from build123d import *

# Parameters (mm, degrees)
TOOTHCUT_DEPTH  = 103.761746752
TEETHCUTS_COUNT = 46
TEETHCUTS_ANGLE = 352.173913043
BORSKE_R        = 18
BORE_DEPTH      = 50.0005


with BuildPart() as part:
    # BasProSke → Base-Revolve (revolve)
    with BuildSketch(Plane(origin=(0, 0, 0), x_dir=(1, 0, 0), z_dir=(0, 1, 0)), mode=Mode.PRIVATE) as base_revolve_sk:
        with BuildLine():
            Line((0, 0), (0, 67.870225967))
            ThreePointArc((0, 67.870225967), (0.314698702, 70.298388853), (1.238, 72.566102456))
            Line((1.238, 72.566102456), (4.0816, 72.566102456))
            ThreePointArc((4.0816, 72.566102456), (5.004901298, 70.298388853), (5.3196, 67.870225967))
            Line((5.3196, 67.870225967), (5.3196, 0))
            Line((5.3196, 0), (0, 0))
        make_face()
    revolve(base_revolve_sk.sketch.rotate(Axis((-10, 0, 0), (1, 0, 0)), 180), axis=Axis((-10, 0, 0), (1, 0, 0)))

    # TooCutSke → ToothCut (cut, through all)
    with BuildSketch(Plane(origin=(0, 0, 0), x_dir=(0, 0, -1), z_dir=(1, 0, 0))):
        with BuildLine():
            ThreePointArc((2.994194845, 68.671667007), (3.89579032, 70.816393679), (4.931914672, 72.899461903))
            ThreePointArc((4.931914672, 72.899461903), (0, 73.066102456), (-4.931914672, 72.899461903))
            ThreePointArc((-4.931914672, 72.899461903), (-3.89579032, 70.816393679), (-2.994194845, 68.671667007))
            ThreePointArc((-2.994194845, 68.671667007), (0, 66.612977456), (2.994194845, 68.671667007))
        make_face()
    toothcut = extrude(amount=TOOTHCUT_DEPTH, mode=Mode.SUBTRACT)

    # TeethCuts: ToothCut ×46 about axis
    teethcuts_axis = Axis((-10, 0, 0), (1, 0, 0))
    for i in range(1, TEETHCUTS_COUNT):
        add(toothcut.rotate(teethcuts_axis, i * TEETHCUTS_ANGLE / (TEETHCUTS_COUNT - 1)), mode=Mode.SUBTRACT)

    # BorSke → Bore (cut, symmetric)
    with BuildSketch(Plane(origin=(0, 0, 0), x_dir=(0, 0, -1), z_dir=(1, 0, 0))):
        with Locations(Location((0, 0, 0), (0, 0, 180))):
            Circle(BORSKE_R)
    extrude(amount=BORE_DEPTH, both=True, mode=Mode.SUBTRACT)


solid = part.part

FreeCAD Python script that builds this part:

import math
import FreeCAD as App
import Part
import Sketcher

V = App.Vector
Q = App.Units.Quantity

doc = App.newDocument("Part")
params = doc.addObject("Spreadsheet::Sheet", "Params")
for row, (alias, value) in enumerate([
    ("sketch1_radius", "0.375 in"),
    ("revolution_angle", "360 deg"),
    ("sketch2_radius", "1.44 in"),
    ("pocket2_length", "100.001 mm"),
], start=1):
    params.set(f"A{row}", alias)
    params.set(f"B{row}", "=" + value)
    params.setAlias(f"B{row}", alias)

body = doc.addObject("PartDesign::Body", "Body")

# Sketch on XZ plane
sketch1 = body.newObject("Sketcher::SketchObject", "Sketch")
sketch1.AttachmentSupport = (doc.getObject("XZ_Plane"), [""])
sketch1.MapMode = "FlatFace"
sketch1.addGeometry(Part.LineSegment(V(0, -67.9, 0), V(0, 0, 0)), False)
sketch1.addGeometry(Part.LineSegment(V(0, 0, 0), V(5.3, 0, 0)), False)
sketch1.addGeometry(Part.LineSegment(V(5.3, 0, 0), V(5.3, -67.9, 0)), False)
sketch1.addGeometry(Part.ArcOfCircle(Part.Circle(V(-4.2, -67.9, 0), V(0, 0, 1), 9.5), math.radians(-30), math.radians(0)), False)
sketch1.addGeometry(Part.LineSegment(V(4.1, -72.6, 0), V(1.2, -72.6, 0)), False)
sketch1.addGeometry(Part.ArcOfCircle(Part.Circle(V(9.5, -67.9, 0), V(0, 0, 1), 9.5), math.radians(180), math.radians(210)), False)
sketch1.addConstraint(Sketcher.Constraint("Coincident", 0, 2, 1, 1))
sketch1.addConstraint(Sketcher.Constraint("Coincident", 1, 2, 2, 1))
sketch1.addConstraint(Sketcher.Constraint("Tangent", 2, 2, 3, 2))
sketch1.addConstraint(Sketcher.Constraint("Coincident", 3, 1, 4, 1))
sketch1.addConstraint(Sketcher.Constraint("Coincident", 4, 2, 5, 2))
sketch1.addConstraint(Sketcher.Constraint("Tangent", 5, 1, 0, 1))
sketch1.addConstraint(Sketcher.Constraint("Vertical", 0))
sketch1.addConstraint(Sketcher.Constraint("Horizontal", 1))
sketch1.addConstraint(Sketcher.Constraint("Vertical", 2))
sketch1.addConstraint(Sketcher.Constraint("Horizontal", 4))
sketch1.addConstraint(Sketcher.Constraint("Coincident", 0, 2, -1, 1))
sketch1.addConstraint(Sketcher.Constraint("Equal", 3, 5))
sketch1.addConstraint(Sketcher.Constraint("Horizontal", 3, 3, 5, 3))
sketch1.addConstraint(Sketcher.Constraint("Radius", 3, Q("0.375 in")))
sketch1.addConstraint(Sketcher.Constraint("DistanceX", 1, 1, 1, 2, Q("5.3196 mm")))
sketch1.addConstraint(Sketcher.Constraint("DistanceX", 4, 2, 4, 1, Q("2.8436 mm")))
sketch1.addConstraint(Sketcher.Constraint("DistanceY", 0, 1, 0, 2, Q("67.870226 mm")))
sketch1.setExpression("Constraints[13]", "Params.sketch1_radius")
revolution = body.newObject("PartDesign::Revolution", "Revolution")
revolution.Profile = sketch1
revolution.ReferenceAxis = (sketch1, ["H_Axis"])
revolution.setExpression("Angle", "Params.revolution_angle")

# Sketch on YZ plane
sketch2 = body.newObject("Sketcher::SketchObject", "Sketch001")
sketch2.AttachmentSupport = (doc.getObject("YZ_Plane"), [""])
sketch2.MapMode = "FlatFace"
sketch2.addGeometry(Part.ArcOfCircle(Part.Circle(V(55.6, -37.1, 0), V(0, 0, 1), 36.6), math.radians(61.73), math.radians(69.02)), False)
sketch2.addGeometry(Part.ArcOfCircle(Part.Circle(V(0, 0, 0), V(0, 0, 1), 73.1), math.radians(-3.87), math.radians(3.87)), False)
sketch2.addGeometry(Part.ArcOfCircle(Part.Circle(V(55.6, 37.1, 0), V(0, 0, 1), 36.6), math.radians(-69.02), math.radians(-61.73)), False)
sketch2.addGeometry(Part.ArcOfCircle(Part.Circle(V(69.8, 0, 0), V(0, 0, 1), 3.2), math.radians(111), math.radians(249)), False)
sketch2.addConstraint(Sketcher.Constraint("Coincident", 0, 1, 1, 1))
sketch2.addConstraint(Sketcher.Constraint("Coincident", 1, 2, 2, 2))
sketch2.addConstraint(Sketcher.Constraint("Tangent", 2, 1, 3, 1))
sketch2.addConstraint(Sketcher.Constraint("Tangent", 3, 2, 0, 2))
sketch2.addConstraint(Sketcher.Constraint("Coincident", 1, 3, -1, 1))
sketch2.addConstraint(Sketcher.Constraint("Equal", 0, 2))
sketch2.addConstraint(Sketcher.Constraint("Symmetric", 0, 3, 2, 3, -1))
sketch2.addConstraint(Sketcher.Constraint("Radius", 0, Q("1.44 in")))
sketch2.addConstraint(Sketcher.Constraint("Radius", 3, Q("3.20675 mm")))
sketch2.addConstraint(Sketcher.Constraint("Radius", 1, Q("73.066102 mm")))
sketch2.addConstraint(Sketcher.Constraint("DistanceY", 0, 3, 2, 1, Q("40.139998 mm")))
sketch2.addConstraint(Sketcher.Constraint("DistanceX", -1, 1, 1, 2, Q("72.899462 mm")))
sketch2.setExpression("Constraints[7]", "Params.sketch2_radius")
pocket1 = body.newObject("PartDesign::Pocket", "Pocket")
pocket1.Profile = sketch2
pocket1.Type = "ThroughAll"
pocket1.Reversed = True
doc.recompute()

polarpattern = body.newObject("PartDesign::PolarPattern", "PolarPattern")
polarpattern.Originals = [pocket1]
polarpattern.Axis = (doc.getObject("X_Axis"), [""])
polarpattern.Angle = 360
polarpattern.Occurrences = 46
body.Tip = polarpattern

# Sketch on YZ plane
sketch3 = body.newObject("Sketcher::SketchObject", "Sketch002")
sketch3.AttachmentSupport = (doc.getObject("YZ_Plane"), [""])
sketch3.MapMode = "FlatFace"
sketch3.addGeometry(Part.Circle(V(0, 0, 0), V(0, 0, 1), 18), False)
sketch3.addConstraint(Sketcher.Constraint("Coincident", 0, 3, -1, 1))
sketch3.addConstraint(Sketcher.Constraint("Diameter", 0, Q("36 mm")))
pocket2 = body.newObject("PartDesign::Pocket", "Pocket001")
pocket2.Profile = sketch3
pocket2.setExpression("Length", "Params.pocket2_length")
pocket2.Midplane = True

doc.recompute()
